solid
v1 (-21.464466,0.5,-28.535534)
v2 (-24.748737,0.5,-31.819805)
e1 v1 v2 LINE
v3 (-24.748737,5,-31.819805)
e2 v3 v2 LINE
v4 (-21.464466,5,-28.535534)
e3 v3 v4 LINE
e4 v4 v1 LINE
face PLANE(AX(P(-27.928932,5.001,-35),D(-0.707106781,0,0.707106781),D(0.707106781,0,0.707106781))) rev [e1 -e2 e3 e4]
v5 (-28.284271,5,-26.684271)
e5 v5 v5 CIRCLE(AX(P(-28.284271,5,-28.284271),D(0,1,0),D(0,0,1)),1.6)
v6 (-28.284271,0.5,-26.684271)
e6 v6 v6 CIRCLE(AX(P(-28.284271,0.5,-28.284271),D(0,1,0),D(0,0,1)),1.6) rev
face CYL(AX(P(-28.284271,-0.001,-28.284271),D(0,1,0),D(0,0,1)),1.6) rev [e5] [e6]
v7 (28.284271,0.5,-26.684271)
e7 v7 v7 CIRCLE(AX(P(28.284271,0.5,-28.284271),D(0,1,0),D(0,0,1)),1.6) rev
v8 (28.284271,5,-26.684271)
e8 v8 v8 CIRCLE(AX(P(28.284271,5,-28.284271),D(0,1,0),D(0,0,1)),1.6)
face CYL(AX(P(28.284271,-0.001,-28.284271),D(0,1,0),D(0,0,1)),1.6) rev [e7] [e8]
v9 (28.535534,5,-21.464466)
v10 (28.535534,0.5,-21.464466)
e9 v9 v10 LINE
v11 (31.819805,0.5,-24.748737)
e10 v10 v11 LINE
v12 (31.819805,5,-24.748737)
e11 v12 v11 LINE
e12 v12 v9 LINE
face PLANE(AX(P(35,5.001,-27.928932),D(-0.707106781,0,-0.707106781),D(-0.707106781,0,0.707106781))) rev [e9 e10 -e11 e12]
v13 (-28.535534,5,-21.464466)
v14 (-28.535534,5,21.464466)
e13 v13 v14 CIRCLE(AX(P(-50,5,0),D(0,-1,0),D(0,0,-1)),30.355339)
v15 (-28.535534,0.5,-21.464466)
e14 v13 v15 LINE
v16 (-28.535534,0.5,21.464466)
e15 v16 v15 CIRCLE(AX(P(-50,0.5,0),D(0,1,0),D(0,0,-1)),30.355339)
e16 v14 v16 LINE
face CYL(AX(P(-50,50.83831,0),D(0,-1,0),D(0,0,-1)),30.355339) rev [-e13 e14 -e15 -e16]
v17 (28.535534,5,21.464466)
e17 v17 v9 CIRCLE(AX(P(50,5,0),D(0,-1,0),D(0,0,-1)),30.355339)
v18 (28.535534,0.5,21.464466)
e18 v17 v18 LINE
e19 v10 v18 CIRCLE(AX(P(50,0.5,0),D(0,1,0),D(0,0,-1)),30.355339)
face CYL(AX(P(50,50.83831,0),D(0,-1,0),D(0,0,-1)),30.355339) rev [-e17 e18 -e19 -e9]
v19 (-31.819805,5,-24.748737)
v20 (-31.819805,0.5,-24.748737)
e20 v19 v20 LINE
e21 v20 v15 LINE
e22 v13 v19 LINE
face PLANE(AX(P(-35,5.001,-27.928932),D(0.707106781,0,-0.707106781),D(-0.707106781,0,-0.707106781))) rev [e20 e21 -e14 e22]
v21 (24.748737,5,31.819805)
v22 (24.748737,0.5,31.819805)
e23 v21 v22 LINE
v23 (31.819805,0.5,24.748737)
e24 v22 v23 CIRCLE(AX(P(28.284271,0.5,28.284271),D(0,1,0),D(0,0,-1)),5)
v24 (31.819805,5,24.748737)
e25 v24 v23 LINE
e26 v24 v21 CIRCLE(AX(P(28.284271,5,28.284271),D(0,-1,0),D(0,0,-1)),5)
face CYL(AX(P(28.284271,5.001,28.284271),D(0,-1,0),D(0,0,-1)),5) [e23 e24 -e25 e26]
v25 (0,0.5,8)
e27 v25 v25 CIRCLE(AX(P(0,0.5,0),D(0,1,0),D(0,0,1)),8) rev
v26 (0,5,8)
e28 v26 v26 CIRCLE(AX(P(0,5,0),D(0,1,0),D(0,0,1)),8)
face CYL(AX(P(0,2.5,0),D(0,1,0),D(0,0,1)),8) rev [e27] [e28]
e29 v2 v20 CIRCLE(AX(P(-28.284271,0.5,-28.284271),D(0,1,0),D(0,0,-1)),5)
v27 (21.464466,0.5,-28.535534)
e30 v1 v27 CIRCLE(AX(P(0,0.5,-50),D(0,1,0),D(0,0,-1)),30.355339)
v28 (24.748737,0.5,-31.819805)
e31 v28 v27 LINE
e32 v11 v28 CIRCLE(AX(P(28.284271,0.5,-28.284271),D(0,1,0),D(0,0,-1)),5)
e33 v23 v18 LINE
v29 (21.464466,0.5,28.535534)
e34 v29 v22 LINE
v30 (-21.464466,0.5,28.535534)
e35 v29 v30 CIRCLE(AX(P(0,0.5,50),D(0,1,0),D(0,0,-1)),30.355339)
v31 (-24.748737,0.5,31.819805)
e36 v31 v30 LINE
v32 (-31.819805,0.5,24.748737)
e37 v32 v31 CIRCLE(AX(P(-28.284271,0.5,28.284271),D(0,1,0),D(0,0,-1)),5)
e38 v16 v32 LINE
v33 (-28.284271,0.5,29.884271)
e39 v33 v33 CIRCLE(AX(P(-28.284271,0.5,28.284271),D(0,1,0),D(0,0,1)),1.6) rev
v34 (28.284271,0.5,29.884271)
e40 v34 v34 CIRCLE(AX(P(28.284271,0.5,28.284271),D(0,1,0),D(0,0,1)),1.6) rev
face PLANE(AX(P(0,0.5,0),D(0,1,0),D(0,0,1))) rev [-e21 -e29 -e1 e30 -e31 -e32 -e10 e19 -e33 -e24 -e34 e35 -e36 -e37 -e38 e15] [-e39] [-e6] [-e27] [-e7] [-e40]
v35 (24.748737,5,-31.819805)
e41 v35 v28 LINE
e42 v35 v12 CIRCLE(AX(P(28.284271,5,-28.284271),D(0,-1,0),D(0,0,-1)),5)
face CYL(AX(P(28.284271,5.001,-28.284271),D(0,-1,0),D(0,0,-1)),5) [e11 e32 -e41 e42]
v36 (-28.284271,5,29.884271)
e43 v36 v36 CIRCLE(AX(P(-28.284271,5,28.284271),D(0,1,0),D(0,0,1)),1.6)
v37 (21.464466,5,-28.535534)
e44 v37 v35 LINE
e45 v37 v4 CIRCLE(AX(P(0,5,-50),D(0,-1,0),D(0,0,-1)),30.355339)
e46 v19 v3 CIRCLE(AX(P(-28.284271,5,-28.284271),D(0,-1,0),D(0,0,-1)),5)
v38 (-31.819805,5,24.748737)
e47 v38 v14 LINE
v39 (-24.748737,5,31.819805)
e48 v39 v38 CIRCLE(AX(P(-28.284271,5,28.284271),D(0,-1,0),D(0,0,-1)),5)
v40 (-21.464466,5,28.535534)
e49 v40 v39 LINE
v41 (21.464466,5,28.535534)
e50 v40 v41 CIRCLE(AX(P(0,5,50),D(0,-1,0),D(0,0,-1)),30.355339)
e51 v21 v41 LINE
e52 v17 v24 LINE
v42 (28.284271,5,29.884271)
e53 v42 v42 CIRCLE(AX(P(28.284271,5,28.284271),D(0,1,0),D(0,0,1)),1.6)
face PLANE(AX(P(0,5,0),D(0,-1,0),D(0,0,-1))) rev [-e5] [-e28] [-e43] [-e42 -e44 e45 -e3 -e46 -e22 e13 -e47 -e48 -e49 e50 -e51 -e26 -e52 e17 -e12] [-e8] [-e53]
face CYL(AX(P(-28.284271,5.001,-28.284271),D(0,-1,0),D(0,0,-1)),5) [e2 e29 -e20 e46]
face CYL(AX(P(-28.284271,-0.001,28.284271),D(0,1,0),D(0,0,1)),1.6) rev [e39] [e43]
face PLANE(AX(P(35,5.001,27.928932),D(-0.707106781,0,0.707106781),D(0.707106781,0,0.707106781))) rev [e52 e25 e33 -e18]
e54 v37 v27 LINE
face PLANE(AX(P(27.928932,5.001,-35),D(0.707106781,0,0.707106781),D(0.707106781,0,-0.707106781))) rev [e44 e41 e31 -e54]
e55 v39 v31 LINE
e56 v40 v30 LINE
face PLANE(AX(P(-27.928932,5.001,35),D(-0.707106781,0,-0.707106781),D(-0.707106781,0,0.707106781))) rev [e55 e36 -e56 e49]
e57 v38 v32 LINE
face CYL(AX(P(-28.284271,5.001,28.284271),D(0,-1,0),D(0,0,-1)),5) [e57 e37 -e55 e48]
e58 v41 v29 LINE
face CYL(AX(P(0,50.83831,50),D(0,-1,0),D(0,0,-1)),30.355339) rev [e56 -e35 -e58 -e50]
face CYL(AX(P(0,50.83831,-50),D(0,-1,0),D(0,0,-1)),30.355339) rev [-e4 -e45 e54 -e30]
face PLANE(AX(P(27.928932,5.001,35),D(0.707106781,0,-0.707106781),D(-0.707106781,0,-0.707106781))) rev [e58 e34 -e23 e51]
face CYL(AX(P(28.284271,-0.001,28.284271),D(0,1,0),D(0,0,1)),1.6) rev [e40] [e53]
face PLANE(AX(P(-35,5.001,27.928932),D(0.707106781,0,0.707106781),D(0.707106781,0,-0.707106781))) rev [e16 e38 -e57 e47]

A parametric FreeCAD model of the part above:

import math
import FreeCAD as App
import Part
import Sketcher

V = App.Vector


def edges_at(feature, points):
    """Names of the edges that pass closest to the given points."""
    edges = feature.Shape.Edges
    near = lambda p: min(range(len(edges)), key=lambda i: edges[i].distToShape(Part.Vertex(*p))[0])
    return sorted({f"Edge{near(p) + 1}" for p in points})


def add_polygon(sketch, points):
    """Adds a closed chain of lines whose ends are joined by coincident constraints."""
    first, n = sketch.GeometryCount, len(points)
    for a, b in zip(points, points[1:] + points[:1]):
        sketch.addGeometry(Part.LineSegment(App.Vector(*a, 0), App.Vector(*b, 0)), False)
    for i in range(n):
        sketch.addConstraint(Sketcher.Constraint("Coincident", first + i, 2, first + (i + 1) % n, 1))

doc = App.newDocument("Part")
params = doc.addObject("Spreadsheet::Sheet", "Params")
for row, (alias, value) in enumerate([
    ("sketch1_width", "70 mm"),
    ("pad1_length", "5 mm"),
    ("sketch2_diameter", "16 mm"),
    ("pocket1_length", "2.5 mm"),
    ("sketch3_diameter", "13 mm"),
    ("sketch4_diameter", "20 mm"),
    ("sketch4_width", "70 mm"),
    ("pocket3_length", "0.5 mm"),
    ("sketch5_diameter", "3.2 mm"),
    ("sketch6_diameter", "3.2 mm"),
    ("sketch7_diameter", "3.2 mm"),
    ("sketch8_diameter", "3.2 mm"),
    ("sketch9_radius", "12.5 mm"),
    ("sketch10_radius", "12.5 mm"),
    ("sketch11_radius", "12.5 mm"),
    ("sketch12_radius", "12.5 mm"),
    ("sketch13_radius", "5 mm"),
    ("sketch14_radius", "5 mm"),
    ("sketch15_radius", "5 mm"),
    ("sketch16_radius", "5 mm"),
    ("fillet_radius", "10 mm"),
    ("sketch17_diameter", "20 mm"),
    ("pocket16_length", "0.5 mm"),
    ("sketch18_radius", "10 mm"),
    ("sketch18_radius2", "12.5 mm"),
    ("pad2_length", "4.5 mm"),
    ("sketch19_diameter", "16 mm"),
    ("sketch19_diameter2", "13 mm"),
    ("pocket17_length", "2 mm"),
], start=1):
    params.set(f"A{row}", alias)
    params.set(f"B{row}", "=" + value)
    params.setAlias(f"B{row}", alias)

body = doc.addObject("PartDesign::Body", "Body")

# Sketch on XZ plane
sketch1 = body.newObject("Sketcher::SketchObject", "Sketch")
sketch1.AttachmentSupport = (doc.getObject("XZ_Plane"), [""])
sketch1.MapMode = "FlatFace"
add_polygon(sketch1, [(-35, -35), (-35, 35), (35, 35), (35, -35)])  # lines 0-3
sketch1.addConstraint(Sketcher.Constraint("Vertical", 0))
sketch1.addConstraint(Sketcher.Constraint("Horizontal", 1))
sketch1.addConstraint(Sketcher.Constraint("Vertical", 2))
sketch1.addConstraint(Sketcher.Constraint("Horizontal", 3))
sketch1.addConstraint(Sketcher.Constraint("Symmetric", 0, 2, 2, 2, -1, 1))
sketch1.addConstraint(Sketcher.Constraint("Equal", 3, 0))
sketch1.addConstraint(Sketcher.Constraint("DistanceX", 1, 1, 1, 2, 70.0))
sketch1.setExpression("Constraints[10]", "Params.sketch1_width")
pad1 = body.newObject("PartDesign::Pad", "Pad")
pad1.Profile = sketch1
pad1.setExpression("Length", "Params.pad1_length")
pad1.Reversed = True

# Sketch on XZ plane
sketch2 = body.newObject("Sketcher::SketchObject", "Sketch001")
sketch2.AttachmentSupport = (doc.getObject("XZ_Plane"), [""])
sketch2.MapMode = "FlatFace"
sketch2.AttachmentOffset = App.Placement(V(0, 0, -5), App.Rotation())
sketch2.addGeometry(Part.Circle(V(0, 0, 0), V(0, 0, 1), 8), False)
sketch2.addConstraint(Sketcher.Constraint("Coincident", 0, 3, -1, 1))
sketch2.addConstraint(Sketcher.Constraint("Diameter", 0, 16.0))
sketch2.setExpression("Constraints[1]", "Params.sketch2_diameter")
pocket1 = body.newObject("PartDesign::Pocket", "Pocket")
pocket1.Profile = sketch2
pocket1.setExpression("Length", "Params.pocket1_length")
pocket1.Reversed = True

# Sketch on XZ plane
sketch3 = body.newObject("Sketcher::SketchObject", "Sketch002")
sketch3.AttachmentSupport = (doc.getObject("XZ_Plane"), [""])
sketch3.MapMode = "FlatFace"
sketch3.AttachmentOffset = App.Placement(V(0, 0, -2.5), App.Rotation())
sketch3.addGeometry(Part.Circle(V(0, 0, 0), V(0, 0, 1), 6), False)
sketch3.addConstraint(Sketcher.Constraint("Coincident", 0, 3, -1, 1))
sketch3.addConstraint(Sketcher.Constraint("Diameter", 0, 13.0))
sketch3.setExpression("Constraints[1]", "Params.sketch3_diameter")
pocket2 = body.newObject("PartDesign::Pocket", "Pocket001")
pocket2.Profile = sketch3
pocket2.Type = "UpToFirst"
pocket2.Reversed = True

# Sketch on XZ plane
sketch4 = body.newObject("Sketcher::SketchObject", "Sketch003")
sketch4.AttachmentSupport = (doc.getObject("XZ_Plane"), [""])
sketch4.MapMode = "FlatFace"
add_polygon(sketch4, [(-35, 35), (-35, -35), (35, -35), (35, 35)])  # lines 0-3
sketch4.addGeometry(Part.Circle(V(0, 0, 0), V(0, 0, 1), 10), False)  # 4
sketch4.addConstraint(Sketcher.Constraint("Vertical", 0))
sketch4.addConstraint(Sketcher.Constraint("Horizontal", 1))
sketch4.addConstraint(Sketcher.Constraint("Vertical", 2))
sketch4.addConstraint(Sketcher.Constraint("Horizontal", 3))
sketch4.addConstraint(Sketcher.Constraint("Coincident", 4, 3, -1, 1))
sketch4.addConstraint(Sketcher.Constraint("Symmetric", 0, 2, 2, 2, -1, 1))
sketch4.addConstraint(Sketcher.Constraint("Equal", 3, 0))
sketch4.addConstraint(Sketcher.Constraint("Diameter", 4, 20.0))
sketch4.addConstraint(Sketcher.Constraint("DistanceX", 1, 1, 1, 2, 70.0))
sketch4.setExpression("Constraints[11]", "Params.sketch4_diameter")
sketch4.setExpression("Constraints[12]", "Params.sketch4_width")
pocket3 = body.newObject("PartDesign::Pocket", "Pocket002")
pocket3.Profile = sketch4
pocket3.setExpression("Length", "Params.pocket3_length")

# Sketch on XZ plane
sketch5 = body.newObject("Sketcher::SketchObject", "Sketch004")
sketch5.AttachmentSupport = (doc.getObject("XZ_Plane"), [""])
sketch5.MapMode = "FlatFace"
sketch5.AttachmentOffset = App.Placement(V(0, 0, -5), App.Rotation())
sketch5.addGeometry(Part.Circle(V(28.3, 28.3, 0), V(0, 0, 1), 1.6), False)
sketch5.addConstraint(Sketcher.Constraint("Diameter", 0, 3.2))
sketch5.addConstraint(Sketcher.Constraint("DistanceX", -1, 1, 0, 3, 28.284271))
sketch5.addConstraint(Sketcher.Constraint("DistanceY", -1, 1, 0, 3, 28.284271))
sketch5.setExpression("Constraints[0]", "Params.sketch5_diameter")
pocket4 = body.newObject("PartDesign::Pocket", "Pocket003")
pocket4.Profile = sketch5
pocket4.Type = "UpToFirst"
pocket4.Reversed = True

# Sketch on XZ plane
sketch6 = body.newObject("Sketcher::SketchObject", "Sketch005")
sketch6.AttachmentSupport = (doc.getObject("XZ_Plane"), [""])
sketch6.MapMode = "FlatFace"
sketch6.AttachmentOffset = App.Placement(V(0, 0, -5), App.Rotation())
sketch6.addGeometry(Part.Circle(V(-28.3, 28.3, 0), V(0, 0, 1), 1.6), False)
sketch6.addConstraint(Sketcher.Constraint("Diameter", 0, 3.2))
sketch6.addConstraint(Sketcher.Constraint("DistanceX", 0, 3, -1, 1, 28.284271))
sketch6.addConstraint(Sketcher.Constraint("DistanceY", -1, 1, 0, 3, 28.284271))
sketch6.setExpression("Constraints[0]", "Params.sketch6_diameter")
pocket5 = body.newObject("PartDesign::Pocket", "Pocket004")
pocket5.Profile = sketch6
pocket5.Type = "UpToFirst"
pocket5.Reversed = True

# Sketch on XZ plane
sketch7 = body.newObject("Sketcher::SketchObject", "Sketch006")
sketch7.AttachmentSupport = (doc.getObject("XZ_Plane"), [""])
sketch7.MapMode = "FlatFace"
sketch7.AttachmentOffset = App.Placement(V(0, 0, -5), App.Rotation())
sketch7.addGeometry(Part.Circle(V(-28.3, -28.3, 0), V(0, 0, 1), 1.6), False)
sketch7.addConstraint(Sketcher.Constraint("Diameter", 0, 3.2))
sketch7.addConstraint(Sketcher.Constraint("DistanceX", 0, 3, -1, 1, 28.284271))
sketch7.addConstraint(Sketcher.Constraint("DistanceY", 0, 3, -1, 1, 28.284271))
sketch7.setExpression("Constraints[0]", "Params.sketch7_diameter")
pocket6 = body.newObject("PartDesign::Pocket", "Pocket005")
pocket6.Profile = sketch7
pocket6.Type = "UpToFirst"
pocket6.Reversed = True

# Sketch on XZ plane
sketch8 = body.newObject("Sketcher::SketchObject", "Sketch007")
sketch8.AttachmentSupport = (doc.getObject("XZ_Plane"), [""])
sketch8.MapMode = "FlatFace"
sketch8.AttachmentOffset = App.Placement(V(0, 0, -5), App.Rotation())
sketch8.addGeometry(Part.Circle(V(28.3, -28.3, 0), V(0, 0, 1), 1.6), False)
sketch8.addConstraint(Sketcher.Constraint("Diameter", 0, 3.2))
sketch8.addConstraint(Sketcher.Constraint("DistanceX", -1, 1, 0, 3, 28.284271))
sketch8.addConstraint(Sketcher.Constraint("DistanceY", 0, 3, -1, 1, 28.284271))
sketch8.setExpression("Constraints[0]", "Params.sketch8_diameter")
pocket7 = body.newObject("PartDesign::Pocket", "Pocket006")
pocket7.Profile = sketch8
pocket7.Type = "UpToFirst"
pocket7.Reversed = True

# Sketch on XZ plane
sketch9 = body.newObject("Sketcher::SketchObject", "Sketch008")
sketch9.AttachmentSupport = (doc.getObject("XZ_Plane"), [""])
sketch9.MapMode = "FlatFace"
sketch9.AttachmentOffset = App.Placement(V(0, 0, -0.5), App.Rotation())
sketch9.addGeometry(Part.LineSegment(V(5, 12, 0), V(28, 35, 0)), False)
sketch9.addGeometry(Part.LineSegment(V(28, 35, 0), V(-28, 35, 0)), False)
sketch9.addGeometry(Part.LineSegment(V(-28, 35, 0), V(-5, 12, 0)), False)
sketch9.addGeometry(Part.ArcOfCircle(Part.Circle(V(0, 0, 0), V(0, 0, 1), 12), math.radians(69), math.radians(111)), False)
sketch9.addConstraint(Sketcher.Constraint("Coincident", 0, 2, 1, 1))
sketch9.addConstraint(Sketcher.Constraint("Coincident", 1, 2, 2, 1))
sketch9.addConstraint(Sketcher.Constraint("Coincident", 2, 2, 3, 2))
sketch9.addConstraint(Sketcher.Constraint("Coincident", 3, 1, 0, 1))
sketch9.addConstraint(Sketcher.Constraint("Horizontal", 1))
sketch9.addConstraint(Sketcher.Constraint("Coincident", 3, 3, -1, 1))
sketch9.addConstraint(Sketcher.Constraint("Perpendicular", 0, 2))
sketch9.addConstraint(Sketcher.Constraint("Horizontal", 2, 2, 3, 1))
sketch9.addConstraint(Sketcher.Constraint("Equal", 0, 2))
sketch9.addConstraint(Sketcher.Constraint("Radius", 3, 12.5))
sketch9.addConstraint(Sketcher.Constraint("DistanceY", -1, 1, 0, 2, 35.0))
sketch9.addConstraint(Sketcher.Constraint("DistanceX", 1, 2, 1, 1, 55.857864))
sketch9.setExpression("Constraints[9]", "Params.sketch9_radius")
pocket8 = body.newObject("PartDesign::Pocket", "Pocket007")
pocket8.Profile = sketch9
pocket8.Type = "UpToFirst"

# Sketch on XZ plane
sketch10 = body.newObject("Sketcher::SketchObject", "Sketch009")
sketch10.AttachmentSupport = (doc.getObject("XZ_Plane"), [""])
sketch10.MapMode = "FlatFace"
sketch10.AttachmentOffset = App.Placement(V(0, 0, -0.5), App.Rotation())
sketch10.addGeometry(Part.LineSegment(V(12, -5, 0), V(35, -28, 0)), False)
sketch10.addGeometry(Part.LineSegment(V(35, -28, 0), V(35, 28, 0)), False)
sketch10.addGeometry(Part.LineSegment(V(35, 28, 0), V(12, 5, 0)), False)
sketch10.addGeometry(Part.ArcOfCircle(Part.Circle(V(0, 0, 0), V(0, 0, 1), 12), math.radians(-21), math.radians(21)), False)
sketch10.addConstraint(Sketcher.Constraint("Coincident", 0, 2, 1, 1))
sketch10.addConstraint(Sketcher.Constraint("Coincident", 1, 2, 2, 1))
sketch10.addConstraint(Sketcher.Constraint("Coincident", 2, 2, 3, 2))
sketch10.addConstraint(Sketcher.Constraint("Coincident", 3, 1, 0, 1))
sketch10.addConstraint(Sketcher.Constraint("Vertical", 1))
sketch10.addConstraint(Sketcher.Constraint("Coincident", 3, 3, -1, 1))
sketch10.addConstraint(Sketcher.Constraint("Perpendicular", 0, 2))
sketch10.addConstraint(Sketcher.Constraint("Vertical", 2, 2, 3, 1))
sketch10.addConstraint(Sketcher.Constraint("Equal", 0, 2))
sketch10.addConstraint(Sketcher.Constraint("Radius", 3, 12.5))
sketch10.addConstraint(Sketcher.Constraint("DistanceX", -1, 1, 0, 2, 35.0))
sketch10.addConstraint(Sketcher.Constraint("DistanceY", 1, 1, 1, 2, 55.857864))
sketch10.setExpression("Constraints[9]", "Params.sketch10_radius")
pocket9 = body.newObject("PartDesign::Pocket", "Pocket008")
pocket9.Profile = sketch10
pocket9.Type = "UpToFirst"

# Sketch on XZ plane
sketch11 = body.newObject("Sketcher::SketchObject", "Sketch010")
sketch11.AttachmentSupport = (doc.getObject("XZ_Plane"), [""])
sketch11.MapMode = "FlatFace"
sketch11.AttachmentOffset = App.Placement(V(0, 0, -0.5), App.Rotation())
sketch11.addGeometry(Part.LineSegment(V(-5, -12, 0), V(-28, -35, 0)), False)
sketch11.addGeometry(Part.LineSegment(V(-28, -35, 0), V(28, -35, 0)), False)
sketch11.addGeometry(Part.LineSegment(V(28, -35, 0), V(5, -12, 0)), False)
sketch11.addGeometry(Part.ArcOfCircle(Part.Circle(V(0, 0, 0), V(0, 0, 1), 12), math.radians(-111), math.radians(-69)), False)
sketch11.addConstraint(Sketcher.Constraint("Coincident", 0, 2, 1, 1))
sketch11.addConstraint(Sketcher.Constraint("Coincident", 1, 2, 2, 1))
sketch11.addConstraint(Sketcher.Constraint("Coincident", 2, 2, 3, 2))
sketch11.addConstraint(Sketcher.Constraint("Coincident", 3, 1, 0, 1))
sketch11.addConstraint(Sketcher.Constraint("Horizontal", 1))
sketch11.addConstraint(Sketcher.Constraint("Coincident", 3, 3, -1, 1))
sketch11.addConstraint(Sketcher.Constraint("Perpendicular", 0, 2))
sketch11.addConstraint(Sketcher.Constraint("Horizontal", 2, 2, 3, 1))
sketch11.addConstraint(Sketcher.Constraint("Equal", 0, 2))
sketch11.addConstraint(Sketcher.Constraint("Radius", 3, 12.5))
sketch11.addConstraint(Sketcher.Constraint("DistanceY", 0, 2, -1, 1, 35.0))
sketch11.addConstraint(Sketcher.Constraint("DistanceX", 1, 1, 1, 2, 55.857864))
sketch11.setExpression("Constraints[9]", "Params.sketch11_radius")
pocket10 = body.newObject("PartDesign::Pocket", "Pocket009")
pocket10.Profile = sketch11
pocket10.Type = "UpToFirst"

# Sketch on XZ plane
sketch12 = body.newObject("Sketcher::SketchObject", "Sketch011")
sketch12.AttachmentSupport = (doc.getObject("XZ_Plane"), [""])
sketch12.MapMode = "FlatFace"
sketch12.AttachmentOffset = App.Placement(V(0, 0, -0.5), App.Rotation())
sketch12.addGeometry(Part.LineSegment(V(-12, 5, 0), V(-35, 28, 0)), False)
sketch12.addGeometry(Part.LineSegment(V(-35, 28, 0), V(-35, -28, 0)), False)
sketch12.addGeometry(Part.LineSegment(V(-35, -28, 0), V(-12, -5, 0)), False)
sketch12.addGeometry(Part.ArcOfCircle(Part.Circle(V(0, 0, 0), V(0, 0, 1), 12), math.radians(159), math.radians(201)), False)
sketch12.addConstraint(Sketcher.Constraint("Coincident", 0, 2, 1, 1))
sketch12.addConstraint(Sketcher.Constraint("Coincident", 1, 2, 2, 1))
sketch12.addConstraint(Sketcher.Constraint("Coincident", 2, 2, 3, 2))
sketch12.addConstraint(Sketcher.Constraint("Coincident", 3, 1, 0, 1))
sketch12.addConstraint(Sketcher.Constraint("Vertical", 1))
sketch12.addConstraint(Sketcher.Constraint("Coincident", 3, 3, -1, 1))
sketch12.addConstraint(Sketcher.Constraint("Perpendicular", 0, 2))
sketch12.addConstraint(Sketcher.Constraint("Vertical", 2, 2, 3, 1))
sketch12.addConstraint(Sketcher.Constraint("Equal", 0, 2))
sketch12.addConstraint(Sketcher.Constraint("Radius", 3, 12.5))
sketch12.addConstraint(Sketcher.Constraint("DistanceX", 0, 2, -1, 1, 35.0))
sketch12.addConstraint(Sketcher.Constraint("DistanceY", 1, 2, 1, 1, 55.857864))
sketch12.setExpression("Constraints[9]", "Params.sketch12_radius")
pocket11 = body.newObject("PartDesign::Pocket", "Pocket010")
pocket11.Profile = sketch12
pocket11.Type = "UpToFirst"

# Sketch on XZ plane
sketch13 = body.newObject("Sketcher::SketchObject", "Sketch012")
sketch13.AttachmentSupport = (doc.getObject("XZ_Plane"), [""])
sketch13.MapMode = "FlatFace"
sketch13.AttachmentOffset = App.Placement(V(0, 0, -0.5), App.Rotation())
sketch13.addGeometry(Part.LineSegment(V(35, 27.9, 0), V(35, 35, 0)), False)
sketch13.addGeometry(Part.LineSegment(V(35, 35, 0), V(27.9, 35, 0)), False)
sketch13.addGeometry(Part.LineSegment(V(27.9, 35, 0), V(24.7, 31.8, 0)), False)
sketch13.addGeometry(Part.ArcOfCircle(Part.Circle(V(28.3, 28.3, 0), V(0, 0, 1), 5), math.radians(-45), math.radians(135)), False)
sketch13.addGeometry(Part.LineSegment(V(31.8, 24.7, 0), V(35, 27.9, 0)), False)
sketch13.addConstraint(Sketcher.Constraint("Coincident", 0, 2, 1, 1))
sketch13.addConstraint(Sketcher.Constraint("Coincident", 1, 2, 2, 1))
sketch13.addConstraint(Sketcher.Constraint("Tangent", 2, 2, 3, 2))
sketch13.addConstraint(Sketcher.Constraint("Tangent", 3, 1, 4, 1))
sketch13.addConstraint(Sketcher.Constraint("Coincident", 4, 2, 0, 1))
sketch13.addConstraint(Sketcher.Constraint("Vertical", 0))
sketch13.addConstraint(Sketcher.Constraint("Horizontal", 1))
sketch13.addConstraint(Sketcher.Constraint("Parallel", 2, 4))
sketch13.addConstraint(Sketcher.Constraint("Equal", 1, 0))
sketch13.addConstraint(Sketcher.Constraint("Equal", 2, 4))
sketch13.addConstraint(Sketcher.Constraint("Radius", 3, 5.0))
sketch13.addConstraint(Sketcher.Constraint("DistanceX", -1, 1, 0, 2, 35.0))
sketch13.addConstraint(Sketcher.Constraint("DistanceY", -1, 1, 0, 2, 35.0))
sketch13.addConstraint(Sketcher.Constraint("DistanceX", -1, 1, 3, 3, 28.284271))
sketch13.setExpression("Constraints[10]", "Params.sketch13_radius")
pocket12 = body.newObject("PartDesign::Pocket", "Pocket011")
pocket12.Profile = sketch13
pocket12.Type = "UpToFirst"

# Sketch on XZ plane
sketch14 = body.newObject("Sketcher::SketchObject", "Sketch013")
sketch14.AttachmentSupport = (doc.getObject("XZ_Plane"), [""])
sketch14.MapMode = "FlatFace"
sketch14.AttachmentOffset = App.Placement(V(0, 0, -0.5), App.Rotation())
sketch14.addGeometry(Part.LineSegment(V(24.7, -31.8, 0), V(27.9, -35, 0)), False)
sketch14.addGeometry(Part.LineSegment(V(27.9, -35, 0), V(35, -35, 0)), False)
sketch14.addGeometry(Part.LineSegment(V(35, -35, 0), V(35, -27.9, 0)), False)
sketch14.addGeometry(Part.LineSegment(V(35, -27.9, 0), V(31.8, -24.7, 0)), False)
sketch14.addGeometry(Part.ArcOfCircle(Part.Circle(V(28.3, -28.3, 0), V(0, 0, 1), 5), math.radians(-135), math.radians(45)), False)
sketch14.addConstraint(Sketcher.Constraint("Coincident", 0, 2, 1, 1))
sketch14.addConstraint(Sketcher.Constraint("Coincident", 1, 2, 2, 1))
sketch14.addConstraint(Sketcher.Constraint("Coincident", 2, 2, 3, 1))
sketch14.addConstraint(Sketcher.Constraint("Tangent", 3, 2, 4, 2))
sketch14.addConstraint(Sketcher.Constraint("Tangent", 4, 1, 0, 1))
sketch14.addConstraint(Sketcher.Constraint("Horizontal", 1))
sketch14.addConstraint(Sketcher.Constraint("Vertical", 2))
sketch14.addConstraint(Sketcher.Constraint("Parallel", 0, 3))
sketch14.addConstraint(Sketcher.Constraint("Equal", 1, 2))
sketch14.addConstraint(Sketcher.Constraint("Equal", 0, 3))
sketch14.addConstraint(Sketcher.Constraint("Radius", 4, 5.0))
sketch14.addConstraint(Sketcher.Constraint("DistanceY", 0, 2, -1, 1, 35.0))
sketch14.addConstraint(Sketcher.Constraint("DistanceX", -1, 1, 1, 2, 35.0))
sketch14.addConstraint(Sketcher.Constraint("DistanceX", -1, 1, 4, 3, 28.284271))
sketch14.setExpression("Constraints[10]", "Params.sketch14_radius")
pocket13 = body.newObject("PartDesign::Pocket", "Pocket012")
pocket13.Profile = sketch14
pocket13.Type = "UpToFirst"

# Sketch on XZ plane
sketch15 = body.newObject("Sketcher::SketchObject", "Sketch014")
sketch15.AttachmentSupport = (doc.getObject("XZ_Plane"), [""])
sketch15.MapMode = "FlatFace"
sketch15.AttachmentOffset = App.Placement(V(0, 0, -0.5), App.Rotation())
sketch15.addGeometry(Part.LineSegment(V(-31.8, -24.7, 0), V(-35, -27.9, 0)), False)
sketch15.addGeometry(Part.LineSegment(V(-35, -27.9, 0), V(-35, -35, 0)), False)
sketch15.addGeometry(Part.LineSegment(V(-35, -35, 0), V(-27.9, -35, 0)), False)
sketch15.addGeometry(Part.LineSegment(V(-27.9, -35, 0), V(-24.7, -31.8, 0)), False)
sketch15.addGeometry(Part.ArcOfCircle(Part.Circle(V(-28.3, -28.3, 0), V(0, 0, 1), 5), math.radians(135), math.radians(315)), False)
sketch15.addConstraint(Sketcher.Constraint("Coincident", 0, 2, 1, 1))
sketch15.addConstraint(Sketcher.Constraint("Coincident", 1, 2, 2, 1))
sketch15.addConstraint(Sketcher.Constraint("Coincident", 2, 2, 3, 1))
sketch15.addConstraint(Sketcher.Constraint("Tangent", 3, 2, 4, 2))
sketch15.addConstraint(Sketcher.Constraint("Tangent", 4, 1, 0, 1))
sketch15.addConstraint(Sketcher.Constraint("Vertical", 1))
sketch15.addConstraint(Sketcher.Constraint("Horizontal", 2))
sketch15.addConstraint(Sketcher.Constraint("Parallel", 0, 3))
sketch15.addConstraint(Sketcher.Constraint("Equal", 2, 1))
sketch15.addConstraint(Sketcher.Constraint("Equal", 0, 3))
sketch15.addConstraint(Sketcher.Constraint("Radius", 4, 5.0))
sketch15.addConstraint(Sketcher.Constraint("DistanceX", 0, 2, -1, 1, 35.0))
sketch15.addConstraint(Sketcher.Constraint("DistanceY", 1, 2, -1, 1, 35.0))
sketch15.addConstraint(Sketcher.Constraint("DistanceX", 4, 3, -1, 1, 28.284271))
sketch15.setExpression("Constraints[10]", "Params.sketch15_radius")
pocket14 = body.newObject("PartDesign::Pocket", "Pocket013")
pocket14.Profile = sketch15
pocket14.Type = "UpToFirst"

# Sketch on XZ plane
sketch16 = body.newObject("Sketcher::SketchObject", "Sketch015")
sketch16.AttachmentSupport = (doc.getObject("XZ_Plane"), [""])
sketch16.MapMode = "FlatFace"
sketch16.AttachmentOffset = App.Placement(V(0, 0, -0.5), App.Rotation())
sketch16.addGeometry(Part.LineSegment(V(-24.7, 31.8, 0), V(-27.9, 35, 0)), False)
sketch16.addGeometry(Part.LineSegment(V(-27.9, 35, 0), V(-35, 35, 0)), False)
sketch16.addGeometry(Part.LineSegment(V(-35, 35, 0), V(-35, 27.9, 0)), False)
sketch16.addGeometry(Part.LineSegment(V(-35, 27.9, 0), V(-31.8, 24.7, 0)), False)
sketch16.addGeometry(Part.ArcOfCircle(Part.Circle(V(-28.3, 28.3, 0), V(0, 0, 1), 5), math.radians(45), math.radians(225)), False)
sketch16.addConstraint(Sketcher.Constraint("Coincident", 0, 2, 1, 1))
sketch16.addConstraint(Sketcher.Constraint("Coincident", 1, 2, 2, 1))
sketch16.addConstraint(Sketcher.Constraint("Coincident", 2, 2, 3, 1))
sketch16.addConstraint(Sketcher.Constraint("Tangent", 3, 2, 4, 2))
sketch16.addConstraint(Sketcher.Constraint("Tangent", 4, 1, 0, 1))
sketch16.addConstraint(Sketcher.Constraint("Horizontal", 1))
sketch16.addConstraint(Sketcher.Constraint("Vertical", 2))
sketch16.addConstraint(Sketcher.Constraint("Parallel", 0, 3))
sketch16.addConstraint(Sketcher.Constraint("Equal", 1, 2))
sketch16.addConstraint(Sketcher.Constraint("Equal", 0, 3))
sketch16.addConstraint(Sketcher.Constraint("Radius", 4, 5.0))
sketch16.addConstraint(Sketcher.Constraint("DistanceY", -1, 1, 0, 2, 35.0))
sketch16.addConstraint(Sketcher.Constraint("DistanceX", 1, 2, -1, 1, 35.0))
sketch16.addConstraint(Sketcher.Constraint("DistanceX", 4, 3, -1, 1, 28.284271))
sketch16.setExpression("Constraints[10]", "Params.sketch16_radius")
pocket15 = body.newObject("PartDesign::Pocket", "Pocket014")
pocket15.Profile = sketch16
pocket15.Type = "UpToFirst"
doc.recompute()

fillet = body.newObject("PartDesign::Fillet", "Fillet")
fillet.Base = (pocket15, edges_at(pocket15, [
    (4.565, 2.75, 11.636),
    (-4.565, 2.75, 11.636),
    (11.636, 2.75, -4.565),
    (11.636, 2.75, 4.565),
    (-4.565, 2.75, -11.636),
    (4.565, 2.75, -11.636),
    (-11.636, 2.75, 4.565),
    (-11.636, 2.75, -4.565),
]))
fillet.setExpression("Radius", "Params.fillet_radius")

# Sketch on XZ plane
sketch17 = body.newObject("Sketcher::SketchObject", "Sketch016")
sketch17.AttachmentSupport = (doc.getObject("XZ_Plane"), [""])
sketch17.MapMode = "FlatFace"
sketch17.addGeometry(Part.Circle(V(0, 0, 0), V(0, 0, 1), 10), False)
sketch17.addConstraint(Sketcher.Constraint("Coincident", 0, 3, -1, 1))
sketch17.addConstraint(Sketcher.Constraint("Diameter", 0, 20.0))
sketch17.setExpression("Constraints[1]", "Params.sketch17_diameter")
pocket16 = body.newObject("PartDesign::Pocket", "Pocket015")
pocket16.Profile = sketch17
pocket16.setExpression("Length", "Params.pocket16_length")

# Sketch on XZ plane
sketch18 = body.newObject("Sketcher::SketchObject", "Sketch017")
sketch18.AttachmentSupport = (doc.getObject("XZ_Plane"), [""])
sketch18.MapMode = "FlatFace"
sketch18.AttachmentOffset = App.Placement(V(0, 0, -0.5), App.Rotation())
sketch18.addGeometry(Part.LineSegment(V(8.3, 15.4, 0), V(21.5, 28.5, 0)), False)
sketch18.addGeometry(Part.ArcOfCircle(Part.Circle(V(0, 50, 0), V(0, 0, 1), 30.4), math.radians(-135), math.radians(-45)), False)
sketch18.addGeometry(Part.LineSegment(V(-21.5, 28.5, 0), V(-8.3, 15.4, 0)), False)
sketch18.addGeometry(Part.ArcOfCircle(Part.Circle(V(-1.3, 22.5, 0), V(0, 0, 1), 10), math.radians(-135), math.radians(-87)), False)
sketch18.addGeometry(Part.ArcOfCircle(Part.Circle(V(0, 0, 0), V(0, 0, 1), 12.5), math.radians(86.81), math.radians(93.19)), False)
sketch18.addGeometry(Part.ArcOfCircle(Part.Circle(V(1.3, 22.5, 0), V(0, 0, 1), 10), math.radians(-93), math.radians(-45)), False)
sketch18.addGeometry(Part.LineSegment(V(28.5, 21.5, 0), V(15.4, 8.3, 0)), False)
sketch18.addGeometry(Part.ArcOfCircle(Part.Circle(V(22.5, 1.3, 0), V(0, 0, 1), 10), math.radians(135), math.radians(183)), False)
sketch18.addGeometry(Part.ArcOfCircle(Part.Circle(V(0, 0, 0), V(0, 0, 1), 12.5), math.radians(-3.19), math.radians(3.19)), False)
sketch18.addGeometry(Part.ArcOfCircle(Part.Circle(V(22.5, -1.3, 0), V(0, 0, 1), 10), math.radians(177), math.radians(225)), False)
sketch18.addGeometry(Part.LineSegment(V(15.4, -8.3, 0), V(28.5, -21.5, 0)), False)
sketch18.addGeometry(Part.ArcOfCircle(Part.Circle(V(50, 0, 0), V(0, 0, 1), 30.4), math.radians(135), math.radians(225)), False)
sketch18.addGeometry(Part.LineSegment(V(21.5, -28.5, 0), V(8.3, -15.4, 0)), False)
sketch18.addGeometry(Part.ArcOfCircle(Part.Circle(V(1.3, -22.5, 0), V(0, 0, 1), 10), math.radians(45), math.radians(93)), False)
sketch18.addGeometry(Part.ArcOfCircle(Part.Circle(V(0, 0, 0), V(0, 0, 1), 12.5), math.radians(-93.19), math.radians(-86.81)), False)
sketch18.addGeometry(Part.ArcOfCircle(Part.Circle(V(-1.3, -22.5, 0), V(0, 0, 1), 10), math.radians(87), math.radians(135)), False)
sketch18.addGeometry(Part.LineSegment(V(-8.3, -15.4, 0), V(-21.5, -28.5, 0)), False)
sketch18.addGeometry(Part.ArcOfCircle(Part.Circle(V(0, -50, 0), V(0, 0, 1), 30.4), math.radians(45), math.radians(135)), False)
sketch18.addGeometry(Part.LineSegment(V(-28.5, -21.5, 0), V(-15.4, -8.3, 0)), False)
sketch18.addGeometry(Part.ArcOfCircle(Part.Circle(V(-22.5, -1.3, 0), V(0, 0, 1), 10), math.radians(-45), math.radians(3)), False)
sketch18.addGeometry(Part.ArcOfCircle(Part.Circle(V(0, 0, 0), V(0, 0, 1), 12.5), math.radians(176.81), math.radians(183.19)), False)
sketch18.addGeometry(Part.ArcOfCircle(Part.Circle(V(-22.5, 1.3, 0), V(0, 0, 1), 10), math.radians(-3), math.radians(45)), False)
sketch18.addGeometry(Part.LineSegment(V(-15.4, 8.3, 0), V(-28.5, 21.5, 0)), False)
sketch18.addGeometry(Part.ArcOfCircle(Part.Circle(V(-50, 0, 0), V(0, 0, 1), 30.4), math.radians(-45), math.radians(45)), False)
sketch18.addConstraint(Sketcher.Constraint("Tangent", 0, 2, 1, 2))
sketch18.addConstraint(Sketcher.Constraint("Tangent", 1, 1, 2, 1))
sketch18.addConstraint(Sketcher.Constraint("Tangent", 2, 2, 3, 1))
sketch18.addConstraint(Sketcher.Constraint("Tangent", 3, 2, 4, 2))
sketch18.addConstraint(Sketcher.Constraint("Tangent", 4, 1, 5, 1))
sketch18.addConstraint(Sketcher.Constraint("Tangent", 5, 2, 0, 1))
sketch18.addConstraint(Sketcher.Constraint("Tangent", 6, 2, 7, 1))
sketch18.addConstraint(Sketcher.Constraint("Tangent", 7, 2, 8, 2))
sketch18.addConstraint(Sketcher.Constraint("Tangent", 8, 1, 9, 1))
sketch18.addConstraint(Sketcher.Constraint("Tangent", 9, 2, 10, 1))
sketch18.addConstraint(Sketcher.Constraint("Tangent", 10, 2, 11, 2))
sketch18.addConstraint(Sketcher.Constraint("Tangent", 11, 1, 6, 1))
sketch18.addConstraint(Sketcher.Constraint("Tangent", 12, 2, 13, 1))
sketch18.addConstraint(Sketcher.Constraint("Tangent", 13, 2, 14, 2))
sketch18.addConstraint(Sketcher.Constraint("Tangent", 14, 1, 15, 1))
sketch18.addConstraint(Sketcher.Constraint("Tangent", 15, 2, 16, 1))
sketch18.addConstraint(Sketcher.Constraint("Tangent", 16, 2, 17, 2))
sketch18.addConstraint(Sketcher.Constraint("Tangent", 17, 1, 12, 1))
sketch18.addConstraint(Sketcher.Constraint("Tangent", 18, 2, 19, 1))
sketch18.addConstraint(Sketcher.Constraint("Tangent", 19, 2, 20, 2))
sketch18.addConstraint(Sketcher.Constraint("Tangent", 20, 1, 21, 1))
sketch18.addConstraint(Sketcher.Constraint("Tangent", 21, 2, 22, 1))
sketch18.addConstraint(Sketcher.Constraint("Tangent", 22, 2, 23, 2))
sketch18.addConstraint(Sketcher.Constraint("Tangent", 23, 1, 18, 1))
sketch18.addConstraint(Sketcher.Constraint("Coincident", 4, 3, -1, 1))
sketch18.addConstraint(Sketcher.Constraint("Coincident", 8, 3, -1, 1))
sketch18.addConstraint(Sketcher.Constraint("Coincident", 14, 3, -1, 1))
sketch18.addConstraint(Sketcher.Constraint("Coincident", 20, 3, -1, 1))
sketch18.addConstraint(Sketcher.Constraint("Equal", 3, 5))
sketch18.addConstraint(Sketcher.Constraint("Equal", 5, 7))
sketch18.addConstraint(Sketcher.Constraint("Equal", 4, 8))
sketch18.addConstraint(Sketcher.Constraint("Equal", 7, 9))
sketch18.addConstraint(Sketcher.Constraint("Equal", 1, 11))
sketch18.addConstraint(Sketcher.Constraint("Equal", 9, 13))
sketch18.addConstraint(Sketcher.Constraint("Equal", 8, 14))
sketch18.addConstraint(Sketcher.Constraint("Equal", 13, 15))
sketch18.addConstraint(Sketcher.Constraint("Equal", 11, 17))
sketch18.addConstraint(Sketcher.Constraint("Equal", 15, 19))
sketch18.addConstraint(Sketcher.Constraint("Equal", 14, 20))
sketch18.addConstraint(Sketcher.Constraint("Equal", 19, 21))
sketch18.addConstraint(Sketcher.Constraint("Equal", 17, 23))
sketch18.addConstraint(Sketcher.Constraint("Symmetric", 1, 3, 17, 3, -1, 1))
sketch18.addConstraint(Sketcher.Constraint("Symmetric", 11, 3, 23, 3, -1, 1))
sketch18.addConstraint(Sketcher.Constraint("Symmetric", 0, 2, 1, 1, -2))
sketch18.addConstraint(Sketcher.Constraint("Symmetric", 9, 2, 18, 2, -2))
sketch18.addConstraint(Sketcher.Constraint("Perpendicular", 0, 2))
sketch18.addConstraint(Sketcher.Constraint("Perpendicular", 2, 6))
sketch18.addConstraint(Sketcher.Constraint("Perpendicular", 6, 10))
sketch18.addConstraint(Sketcher.Constraint("Parallel", 10, 12))
sketch18.addConstraint(Sketcher.Constraint("Perpendicular", 12, 16))
sketch18.addConstraint(Sketcher.Constraint("Perpendicular", 18, 22))
sketch18.addConstraint(Sketcher.Constraint("Equal", 2, 6))
sketch18.addConstraint(Sketcher.Constraint("Radius", 3, 10.0))
sketch18.addConstraint(Sketcher.Constraint("Radius", 4, 12.5))
sketch18.addConstraint(Sketcher.Constraint("DistanceY", -1, 1, 1, 3, 50.0))
sketch18.addConstraint(Sketcher.Constraint("Radius", 1, 30.355339))
sketch18.setExpression("Constraints[52]", "Params.sketch18_radius")
sketch18.setExpression("Constraints[53]", "Params.sketch18_radius2")
pad2 = body.newObject("PartDesign::Pad", "Pad001")
pad2.Profile = sketch18
pad2.setExpression("Length", "Params.pad2_length")
pad2.Reversed = True

# Sketch on XZ plane
sketch19 = body.newObject("Sketcher::SketchObject", "Sketch018")
sketch19.AttachmentSupport = (doc.getObject("XZ_Plane"), [""])
sketch19.MapMode = "FlatFace"
sketch19.AttachmentOffset = App.Placement(V(0, 0, -2.5), App.Rotation())
sketch19.addGeometry(Part.Circle(V(0, 0, 0), V(0, 0, 1), 8), False)
sketch19.addGeometry(Part.Circle(V(0, 0, 0), V(0, 0, 1), 6), False)
sketch19.addConstraint(Sketcher.Constraint("Coincident", 0, 3, -1, 1))
sketch19.addConstraint(Sketcher.Constraint("Coincident", 1, 3, -1, 1))
sketch19.addConstraint(Sketcher.Constraint("Diameter", 0, 16.0))
sketch19.addConstraint(Sketcher.Constraint("Diameter", 1, 13.0))
sketch19.setExpression("Constraints[2]", "Params.sketch19_diameter")
sketch19.setExpression("Constraints[3]", "Params.sketch19_diameter2")
pocket17 = body.newObject("PartDesign::Pocket", "Pocket016")
pocket17.Profile = sketch19
pocket17.setExpression("Length", "Params.pocket17_length")
pocket17.Reversed = True

doc.recompute()
